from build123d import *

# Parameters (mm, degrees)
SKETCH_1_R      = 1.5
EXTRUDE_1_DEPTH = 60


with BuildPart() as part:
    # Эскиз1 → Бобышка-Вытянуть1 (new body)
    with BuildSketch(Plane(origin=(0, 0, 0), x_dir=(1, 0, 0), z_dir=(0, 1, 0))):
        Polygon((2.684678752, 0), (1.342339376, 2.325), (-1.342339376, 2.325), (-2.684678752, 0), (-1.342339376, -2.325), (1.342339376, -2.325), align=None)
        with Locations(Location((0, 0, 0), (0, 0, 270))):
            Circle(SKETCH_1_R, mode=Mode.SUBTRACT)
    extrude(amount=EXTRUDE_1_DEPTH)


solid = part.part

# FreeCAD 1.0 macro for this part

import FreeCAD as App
import Part
import Sketcher
from FreeCAD import Vector
Q = App.Units.Quantity


def add_polygon(sketch, points):
    """Adds a closed chain of lines whose ends are joined by coincident constraints."""
    first, n = sketch.GeometryCount, len(points)
    for a, b in zip(points, points[1:] + points[:1]):
        sketch.addGeometry(Part.LineSegment(App.Vector(*a, 0), App.Vector(*b, 0)), False)
    for i in range(n):
        sketch.addConstraint(Sketcher.Constraint("Coincident", first + i, 2, first + (i + 1) % n, 1))

doc = App.newDocument("Part")
body = doc.addObject("PartDesign::Body", "Body")

sketch1 = body.newObject("Sketcher::SketchObject", "Sketch")
sketch1.AttachmentSupport = (doc.getObject("XZ_Plane"), [""])
sketch1.MapMode = "FlatFace"
add_polygon(sketch1, [(2.7, 0), (1.3, -2.3), (-1.3, -2.3), (-2.7, 0), (-1.3, 2.3), (1.3, 2.3)])
sketch1.addGeometry(Part.Circle(Vector(0, 0, 0), Vector(0, 0, 1), 1.5), False)
sketch1.addConstraint([
    Sketcher.Constraint("Horizontal", 1),
    Sketcher.Constraint("Horizontal", 4),
    Sketcher.Constraint("Coincident", 6, 3, -1, 1),
    Sketcher.Constraint("Symmetric", 0, 2, 3, 2, -1, 1),
    Sketcher.Constraint("Symmetric", 2, 2, 5, 2, -1, 1),
    Sketcher.Constraint("PointOnObject", 2, 2, -1),
    Sketcher.Constraint("Parallel", 2, 5),
    Sketcher.Constraint("Vertical", 1, 2, 3, 2),
    Sketcher.Constraint("Diameter", 6, Q("3 mm")),
    Sketcher.Constraint("Angle", 0, Q("-120 deg")),
    Sketcher.Constraint("DistanceY", 1, 2, 3, 2, Q("4.65 mm")),
    Sketcher.Constraint("DistanceX", 1, 2, 1, 1, Q("2.684679 mm")),
])
pad1 = body.newObject("PartDesign::Pad", "Pad")
pad1.Profile = sketch1
pad1.Length = 60
pad1.Reversed = True

doc.recompute()
